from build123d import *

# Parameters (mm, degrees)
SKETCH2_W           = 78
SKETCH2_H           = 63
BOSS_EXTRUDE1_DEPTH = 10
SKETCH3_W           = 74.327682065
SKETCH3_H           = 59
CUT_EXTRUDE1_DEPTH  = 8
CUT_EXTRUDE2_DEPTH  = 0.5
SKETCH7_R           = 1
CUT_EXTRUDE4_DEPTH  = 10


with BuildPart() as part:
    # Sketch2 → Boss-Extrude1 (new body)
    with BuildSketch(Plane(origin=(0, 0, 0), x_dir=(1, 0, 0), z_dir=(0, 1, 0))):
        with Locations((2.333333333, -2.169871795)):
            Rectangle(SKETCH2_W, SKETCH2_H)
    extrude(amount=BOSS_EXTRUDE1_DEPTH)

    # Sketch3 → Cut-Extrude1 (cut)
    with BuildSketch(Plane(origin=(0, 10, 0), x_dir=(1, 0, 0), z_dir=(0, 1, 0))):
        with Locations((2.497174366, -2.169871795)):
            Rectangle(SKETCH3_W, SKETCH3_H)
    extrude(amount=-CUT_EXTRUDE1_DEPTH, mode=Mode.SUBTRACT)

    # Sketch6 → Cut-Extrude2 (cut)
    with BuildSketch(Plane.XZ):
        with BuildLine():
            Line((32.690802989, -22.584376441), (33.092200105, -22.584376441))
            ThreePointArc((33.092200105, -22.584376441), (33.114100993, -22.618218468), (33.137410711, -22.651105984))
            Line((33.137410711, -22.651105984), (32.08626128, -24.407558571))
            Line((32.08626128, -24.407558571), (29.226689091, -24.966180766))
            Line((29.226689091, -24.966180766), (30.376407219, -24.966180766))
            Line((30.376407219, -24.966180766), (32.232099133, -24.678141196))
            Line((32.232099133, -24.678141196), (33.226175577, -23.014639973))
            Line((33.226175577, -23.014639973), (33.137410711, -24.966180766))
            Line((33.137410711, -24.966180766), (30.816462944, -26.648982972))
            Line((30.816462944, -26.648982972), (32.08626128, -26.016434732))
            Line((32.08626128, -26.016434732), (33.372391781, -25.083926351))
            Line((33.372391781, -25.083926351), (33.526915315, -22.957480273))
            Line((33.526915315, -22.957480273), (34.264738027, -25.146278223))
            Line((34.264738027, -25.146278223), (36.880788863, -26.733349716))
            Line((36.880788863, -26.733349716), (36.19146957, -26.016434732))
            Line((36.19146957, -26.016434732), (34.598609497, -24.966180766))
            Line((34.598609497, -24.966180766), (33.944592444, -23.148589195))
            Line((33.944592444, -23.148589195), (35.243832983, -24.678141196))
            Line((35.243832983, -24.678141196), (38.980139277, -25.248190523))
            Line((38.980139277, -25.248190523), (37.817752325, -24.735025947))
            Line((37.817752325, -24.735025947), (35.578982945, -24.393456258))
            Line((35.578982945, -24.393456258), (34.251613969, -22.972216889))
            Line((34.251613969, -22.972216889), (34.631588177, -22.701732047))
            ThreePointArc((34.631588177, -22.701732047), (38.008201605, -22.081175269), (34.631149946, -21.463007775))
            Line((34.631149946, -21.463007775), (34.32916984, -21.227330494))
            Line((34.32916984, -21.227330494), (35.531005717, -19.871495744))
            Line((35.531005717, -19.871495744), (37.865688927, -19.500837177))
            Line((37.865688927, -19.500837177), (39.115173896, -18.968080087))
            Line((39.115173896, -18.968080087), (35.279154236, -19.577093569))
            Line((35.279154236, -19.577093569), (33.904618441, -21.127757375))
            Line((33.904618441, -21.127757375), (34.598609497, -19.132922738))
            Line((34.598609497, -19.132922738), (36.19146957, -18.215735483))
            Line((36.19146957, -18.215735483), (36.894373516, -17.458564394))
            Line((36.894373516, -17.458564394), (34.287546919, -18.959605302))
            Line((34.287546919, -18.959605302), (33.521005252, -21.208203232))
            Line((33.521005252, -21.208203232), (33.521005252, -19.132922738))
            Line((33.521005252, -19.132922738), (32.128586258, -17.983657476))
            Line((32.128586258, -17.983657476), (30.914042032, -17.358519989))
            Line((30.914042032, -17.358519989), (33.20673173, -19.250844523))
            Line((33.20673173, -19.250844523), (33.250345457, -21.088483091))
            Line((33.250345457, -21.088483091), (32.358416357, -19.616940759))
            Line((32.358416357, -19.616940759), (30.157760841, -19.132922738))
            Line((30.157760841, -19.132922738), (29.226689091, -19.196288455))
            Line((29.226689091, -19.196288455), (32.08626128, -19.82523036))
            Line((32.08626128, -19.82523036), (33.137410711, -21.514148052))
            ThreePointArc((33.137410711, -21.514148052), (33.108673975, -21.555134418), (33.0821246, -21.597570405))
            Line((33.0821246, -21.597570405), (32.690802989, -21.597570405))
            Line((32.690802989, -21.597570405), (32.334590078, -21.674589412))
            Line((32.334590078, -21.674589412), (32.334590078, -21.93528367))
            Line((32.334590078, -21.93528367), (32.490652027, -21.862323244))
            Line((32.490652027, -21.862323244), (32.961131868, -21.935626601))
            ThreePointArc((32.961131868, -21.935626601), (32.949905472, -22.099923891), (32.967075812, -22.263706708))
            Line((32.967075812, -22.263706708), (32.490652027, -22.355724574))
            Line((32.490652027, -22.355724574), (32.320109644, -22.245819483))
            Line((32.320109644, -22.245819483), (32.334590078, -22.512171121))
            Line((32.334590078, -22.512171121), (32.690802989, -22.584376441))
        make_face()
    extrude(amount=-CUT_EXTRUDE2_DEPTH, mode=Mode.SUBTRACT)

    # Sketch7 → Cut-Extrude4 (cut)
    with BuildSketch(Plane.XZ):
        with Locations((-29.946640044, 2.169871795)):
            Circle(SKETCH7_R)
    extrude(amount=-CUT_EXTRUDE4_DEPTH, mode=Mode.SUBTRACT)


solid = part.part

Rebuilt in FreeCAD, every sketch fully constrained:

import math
import FreeCAD as App
import Part
import Sketcher


def add_polygon(sketch, points):
    """Adds a closed chain of lines whose ends are joined by coincident constraints."""
    first, n = sketch.GeometryCount, len(points)
    for a, b in zip(points, points[1:] + points[:1]):
        sketch.addGeometry(Part.LineSegment(App.Vector(*a, 0), App.Vector(*b, 0)), False)
    for i in range(n):
        sketch.addConstraint(Sketcher.Constraint("Coincident", first + i, 2, first + (i + 1) % n, 1))

doc = App.newDocument("Part")
body = doc.addObject("PartDesign::Body", "Body")

# Sketch on XZ plane
sketch1 = body.newObject("Sketcher::SketchObject", "Sketch")
sketch1.AttachmentSupport = (doc.getObject("XZ_Plane"), [""])
sketch1.MapMode = "FlatFace"
add_polygon(sketch1, [(-37, -29), (-37, 34), (41, 34), (41, -29)])  # lines 0-3
sketch1.addConstraint(Sketcher.Constraint("Vertical", 0))
sketch1.addConstraint(Sketcher.Constraint("Horizontal", 1))
sketch1.addConstraint(Sketcher.Constraint("Vertical", 2))
sketch1.addConstraint(Sketcher.Constraint("Horizontal", 3))
sketch1.addConstraint(Sketcher.Constraint("DistanceX", 1, 1, 1, 2, 78.0))
sketch1.addConstraint(Sketcher.Constraint("DistanceY", 0, 1, 0, 2, 63.0))
sketch1.addConstraint(Sketcher.Constraint("DistanceY", -1, 1, 0, 2, 33.669872))
sketch1.addConstraint(Sketcher.Constraint("DistanceX", 0, 2, -1, 1, 36.666667))
pad1 = body.newObject("PartDesign::Pad", "Pad")
pad1.Profile = sketch1
pad1.Length = 10
pad1.Reversed = True

# Sketch on XZ plane
sketch2 = body.newObject("Sketcher::SketchObject", "Sketch001")
sketch2.AttachmentSupport = (doc.getObject("XZ_Plane"), [""])
sketch2.MapMode = "FlatFace"
sketch2.AttachmentOffset = App.Placement(App.Vector(0, 0, -10), App.Rotation())
add_polygon(sketch2, [(-35, -27), (-35, 32), (40, 32), (40, -27)])  # lines 0-3
sketch2.addConstraint(Sketcher.Constraint("Vertical", 0))
sketch2.addConstraint(Sketcher.Constraint("Horizontal", 1))
sketch2.addConstraint(Sketcher.Constraint("Vertical", 2))
sketch2.addConstraint(Sketcher.Constraint("Horizontal", 3))
sketch2.addConstraint(Sketcher.Constraint("DistanceY", 0, 1, 0, 2, 59.0))
sketch2.addConstraint(Sketcher.Constraint("DistanceX", 1, 1, 1, 2, 74.327682))
sketch2.addConstraint(Sketcher.Constraint("DistanceY", -1, 1, 0, 2, 31.669872))
sketch2.addConstraint(Sketcher.Constraint("DistanceX", 0, 2, -1, 1, 34.666667))
pocket1 = body.newObject("PartDesign::Pocket", "Pocket")
pocket1.Profile = sketch2
pocket1.Length = 8
pocket1.Reversed = True

# Sketch on XZ plane
sketch3 = body.newObject("Sketcher::SketchObject", "Sketch002")
sketch3.AttachmentSupport = (doc.getObject("XZ_Plane"), [""])
sketch3.MapMode = "FlatFace"
sketch3.addGeometry(Part.LineSegment(App.Vector(32.69, -22.58, 0), App.Vector(33.09, -22.58, 0)), False)
sketch3.addGeometry(Part.ArcOfCircle(Part.Circle(App.Vector(33.9, -22.08, 0), App.Vector(0, 0, 1), 0.95), math.radians(-148.3), math.radians(-143.46)), False)
sketch3.addGeometry(Part.LineSegment(App.Vector(33.14, -22.65, 0), App.Vector(32.09, -24.41, 0)), False)
sketch3.addGeometry(Part.LineSegment(App.Vector(32.09, -24.41, 0), App.Vector(29.23, -24.97, 0)), False)
sketch3.addGeometry(Part.LineSegment(App.Vector(29.23, -24.97, 0), App.Vector(30.38, -24.97, 0)), False)
sketch3.addGeometry(Part.LineSegment(App.Vector(30.38, -24.97, 0), App.Vector(32.23, -24.68, 0)), False)
sketch3.addGeometry(Part.LineSegment(App.Vector(32.23, -24.68, 0), App.Vector(33.23, -23.01, 0)), False)
sketch3.addGeometry(Part.LineSegment(App.Vector(33.23, -23.01, 0), App.Vector(33.14, -24.97, 0)), False)
sketch3.addGeometry(Part.LineSegment(App.Vector(33.14, -24.97, 0), App.Vector(30.82, -26.65, 0)), False)
sketch3.addGeometry(Part.LineSegment(App.Vector(30.82, -26.65, 0), App.Vector(32.09, -26.02, 0)), False)
sketch3.addGeometry(Part.LineSegment(App.Vector(32.09, -26.02, 0), App.Vector(33.37, -25.08, 0)), False)
sketch3.addGeometry(Part.LineSegment(App.Vector(33.37, -25.08, 0), App.Vector(33.53, -22.96, 0)), False)
sketch3.addGeometry(Part.LineSegment(App.Vector(33.53, -22.96, 0), App.Vector(34.26, -25.15, 0)), False)
sketch3.addGeometry(Part.LineSegment(App.Vector(34.26, -25.15, 0), App.Vector(36.88, -26.73, 0)), False)
sketch3.addGeometry(Part.LineSegment(App.Vector(36.88, -26.73, 0), App.Vector(36.19, -26.02, 0)), False)
sketch3.addGeometry(Part.LineSegment(App.Vector(36.19, -26.02, 0), App.Vector(34.6, -24.97, 0)), False)
sketch3.addGeometry(Part.LineSegment(App.Vector(34.6, -24.97, 0), App.Vector(33.94, -23.15, 0)), False)
sketch3.addGeometry(Part.LineSegment(App.Vector(33.94, -23.15, 0), App.Vector(35.24, -24.68, 0)), False)
sketch3.addGeometry(Part.LineSegment(App.Vector(35.24, -24.68, 0), App.Vector(38.98, -25.25, 0)), False)
sketch3.addGeometry(Part.LineSegment(App.Vector(38.98, -25.25, 0), App.Vector(37.82, -24.74, 0)), False)
sketch3.addGeometry(Part.LineSegment(App.Vector(37.82, -24.74, 0), App.Vector(35.58, -24.39, 0)), False)
sketch3.addGeometry(Part.LineSegment(App.Vector(35.58, -24.39, 0), App.Vector(34.25, -22.97, 0)), False)
sketch3.addGeometry(Part.LineSegment(App.Vector(34.25, -22.97, 0), App.Vector(34.63, -22.7, 0)), False)
sketch3.addGeometry(Part.ArcOfCircle(Part.Circle(App.Vector(36.26, -22.08, 0), App.Vector(0, 0, 1), 1.75), math.radians(-159), math.radians(159)), False)
sketch3.addGeometry(Part.LineSegment(App.Vector(34.63, -21.46, 0), App.Vector(34.33, -21.23, 0)), False)
sketch3.addGeometry(Part.LineSegment(App.Vector(34.33, -21.23, 0), App.Vector(35.53, -19.87, 0)), False)
sketch3.addGeometry(Part.LineSegment(App.Vector(35.53, -19.87, 0), App.Vector(37.87, -19.5, 0)), False)
sketch3.addGeometry(Part.LineSegment(App.Vector(37.87, -19.5, 0), App.Vector(39.12, -18.97, 0)), False)
sketch3.addGeometry(Part.LineSegment(App.Vector(39.12, -18.97, 0), App.Vector(35.28, -19.58, 0)), False)
sketch3.addGeometry(Part.LineSegment(App.Vector(35.28, -19.58, 0), App.Vector(33.9, -21.13, 0)), False)
sketch3.addGeometry(Part.LineSegment(App.Vector(33.9, -21.13, 0), App.Vector(34.6, -19.13, 0)), False)
sketch3.addGeometry(Part.LineSegment(App.Vector(34.6, -19.13, 0), App.Vector(36.19, -18.22, 0)), False)
sketch3.addGeometry(Part.LineSegment(App.Vector(36.19, -18.22, 0), App.Vector(36.89, -17.46, 0)), False)
sketch3.addGeometry(Part.LineSegment(App.Vector(36.89, -17.46, 0), App.Vector(34.29, -18.96, 0)), False)
sketch3.addGeometry(Part.LineSegment(App.Vector(34.29, -18.96, 0), App.Vector(33.52, -21.21, 0)), False)
sketch3.addGeometry(Part.LineSegment(App.Vector(33.52, -21.21, 0), App.Vector(33.52, -19.13, 0)), False)
sketch3.addGeometry(Part.LineSegment(App.Vector(33.52, -19.13, 0), App.Vector(32.13, -17.98, 0)), False)
sketch3.addGeometry(Part.LineSegment(App.Vector(32.13, -17.98, 0), App.Vector(30.91, -17.36, 0)), False)
sketch3.addGeometry(Part.LineSegment(App.Vector(30.91, -17.36, 0), App.Vector(33.21, -19.25, 0)), False)
sketch3.addGeometry(Part.LineSegment(App.Vector(33.21, -19.25, 0), App.Vector(33.25, -21.09, 0)), False)
sketch3.addGeometry(Part.LineSegment(App.Vector(33.25, -21.09, 0), App.Vector(32.36, -19.62, 0)), False)
sketch3.addGeometry(Part.LineSegment(App.Vector(32.36, -19.62, 0), App.Vector(30.16, -19.13, 0)), False)
sketch3.addGeometry(Part.LineSegment(App.Vector(30.16, -19.13, 0), App.Vector(29.23, -19.2, 0)), False)
sketch3.addGeometry(Part.LineSegment(App.Vector(29.23, -19.2, 0), App.Vector(32.09, -19.83, 0)), False)
sketch3.addGeometry(Part.LineSegment(App.Vector(32.09, -19.83, 0), App.Vector(33.14, -21.51, 0)), False)
sketch3.addGeometry(Part.ArcOfCircle(Part.Circle(App.Vector(33.9, -22.08, 0), App.Vector(0, 0, 1), 0.95), math.radians(143.46), math.radians(149.47)), False)
sketch3.addGeometry(Part.LineSegment(App.Vector(33.08, -21.6, 0), App.Vector(32.69, -21.6, 0)), False)
sketch3.addGeometry(Part.LineSegment(App.Vector(32.69, -21.6, 0), App.Vector(32.33, -21.67, 0)), False)
sketch3.addGeometry(Part.LineSegment(App.Vector(32.33, -21.67, 0), App.Vector(32.33, -21.94, 0)), False)
sketch3.addGeometry(Part.LineSegment(App.Vector(32.33, -21.94, 0), App.Vector(32.49, -21.86, 0)), False)
sketch3.addGeometry(Part.LineSegment(App.Vector(32.49, -21.86, 0), App.Vector(32.96, -21.94, 0)), False)
sketch3.addGeometry(Part.ArcOfCircle(Part.Circle(App.Vector(33.9, -22.08, 0), App.Vector(0, 0, 1), 0.95), math.radians(171.14), math.radians(190.93)), False)
sketch3.addGeometry(Part.LineSegment(App.Vector(32.97, -22.26, 0), App.Vector(32.49, -22.36, 0)), False)
sketch3.addGeometry(Part.LineSegment(App.Vector(32.49, -22.36, 0), App.Vector(32.32, -22.25, 0)), False)
sketch3.addGeometry(Part.LineSegment(App.Vector(32.32, -22.25, 0), App.Vector(32.33, -22.51, 0)), False)
sketch3.addGeometry(Part.LineSegment(App.Vector(32.33, -22.51, 0), App.Vector(32.69, -22.58, 0)), False)
sketch3.addConstraint(Sketcher.Constraint("Coincident", 0, 2, 1, 1))
sketch3.addConstraint(Sketcher.Constraint("Coincident", 1, 2, 2, 1))
sketch3.addConstraint(Sketcher.Constraint("Coincident", 2, 2, 3, 1))
sketch3.addConstraint(Sketcher.Constraint("Coincident", 3, 2, 4, 1))
sketch3.addConstraint(Sketcher.Constraint("Coincident", 4, 2, 5, 1))
sketch3.addConstraint(Sketcher.Constraint("Coincident", 5, 2, 6, 1))
sketch3.addConstraint(Sketcher.Constraint("Coincident", 6, 2, 7, 1))
sketch3.addConstraint(Sketcher.Constraint("Coincident", 7, 2, 8, 1))
sketch3.addConstraint(Sketcher.Constraint("Coincident", 8, 2, 9, 1))
sketch3.addConstraint(Sketcher.Constraint("Coincident", 9, 2, 10, 1))
sketch3.addConstraint(Sketcher.Constraint("Coincident", 10, 2, 11, 1))
sketch3.addConstraint(Sketcher.Constraint("Coincident", 11, 2, 12, 1))
sketch3.addConstraint(Sketcher.Constraint("Coincident", 12, 2, 13, 1))
sketch3.addConstraint(Sketcher.Constraint("Coincident", 13, 2, 14, 1))
sketch3.addConstraint(Sketcher.Constraint("Coincident", 14, 2, 15, 1))
sketch3.addConstraint(Sketcher.Constraint("Coincident", 15, 2, 16, 1))
sketch3.addConstraint(Sketcher.Constraint("Coincident", 16, 2, 17, 1))
sketch3.addConstraint(Sketcher.Constraint("Coincident", 17, 2, 18, 1))
sketch3.addConstraint(Sketcher.Constraint("Coincident", 18, 2, 19, 1))
sketch3.addConstraint(Sketcher.Constraint("Coincident", 19, 2, 20, 1))
sketch3.addConstraint(Sketcher.Constraint("Coincident", 20, 2, 21, 1))
sketch3.addConstraint(Sketcher.Constraint("Coincident", 21, 2, 22, 1))
sketch3.addConstraint(Sketcher.Constraint("Coincident", 22, 2, 23, 1))
sketch3.addConstraint(Sketcher.Constraint("Coincident", 23, 2, 24, 1))
sketch3.addConstraint(Sketcher.Constraint("Coincident", 24, 2, 25, 1))
sketch3.addConstraint(Sketcher.Constraint("Coincident", 25, 2, 26, 1))
sketch3.addConstraint(Sketcher.Constraint("Coincident", 26, 2, 27, 1))
sketch3.addConstraint(Sketcher.Constraint("Coincident", 27, 2, 28, 1))
sketch3.addConstraint(Sketcher.Constraint("Coincident", 28, 2, 29, 1))
sketch3.addConstraint(Sketcher.Constraint("Coincident", 29, 2, 30, 1))
sketch3.addConstraint(Sketcher.Constraint("Coincident", 30, 2, 31, 1))
sketch3.addConstraint(Sketcher.Constraint("Coincident", 31, 2, 32, 1))
sketch3.addConstraint(Sketcher.Constraint("Coincident", 32, 2, 33, 1))
sketch3.addConstraint(Sketcher.Constraint("Coincident", 33, 2, 34, 1))
sketch3.addConstraint(Sketcher.Constraint("Coincident", 34, 2, 35, 1))
sketch3.addConstraint(Sketcher.Constraint("Coincident", 35, 2, 36, 1))
sketch3.addConstraint(Sketcher.Constraint("Coincident", 36, 2, 37, 1))
sketch3.addConstraint(Sketcher.Constraint("Coincident", 37, 2, 38, 1))
sketch3.addConstraint(Sketcher.Constraint("Coincident", 38, 2, 39, 1))
sketch3.addConstraint(Sketcher.Constraint("Coincident", 39, 2, 40, 1))
sketch3.addConstraint(Sketcher.Constraint("Coincident", 40, 2, 41, 1))
sketch3.addConstraint(Sketcher.Constraint("Coincident", 41, 2, 42, 1))
sketch3.addConstraint(Sketcher.Constraint("Coincident", 42, 2, 43, 1))
sketch3.addConstraint(Sketcher.Constraint("Coincident", 43, 2, 44, 1))
sketch3.addConstraint(Sketcher.Constraint("Coincident", 44, 2, 45, 1))
sketch3.addConstraint(Sketcher.Constraint("Coincident", 45, 2, 46, 1))
sketch3.addConstraint(Sketcher.Constraint("Coincident", 46, 2, 47, 1))
sketch3.addConstraint(Sketcher.Constraint("Coincident", 47, 2, 48, 1))
sketch3.addConstraint(Sketcher.Constraint("Coincident", 48, 2, 49, 1))
sketch3.addConstraint(Sketcher.Constraint("Coincident", 49, 2, 50, 1))
sketch3.addConstraint(Sketcher.Constraint("Coincident", 50, 2, 51, 1))
sketch3.addConstraint(Sketcher.Constraint("Coincident", 51, 2, 52, 1))
sketch3.addConstraint(Sketcher.Constraint("Coincident", 52, 2, 53, 1))
sketch3.addConstraint(Sketcher.Constraint("Coincident", 53, 2, 54, 1))
sketch3.addConstraint(Sketcher.Constraint("Coincident", 54, 2, 55, 1))
sketch3.addConstraint(Sketcher.Constraint("Coincident", 55, 2, 0, 1))
sketch3.addConstraint(Sketcher.Constraint("Horizontal", 0))
sketch3.addConstraint(Sketcher.Constraint("Horizontal", 4))
sketch3.addConstraint(Sketcher.Constraint("Vertical", 35))
sketch3.addConstraint(Sketcher.Constraint("Horizontal", 46))
sketch3.addConstraint(Sketcher.Constraint("Vertical", 48))
sketch3.addConstraint(Sketcher.Constraint("Coincident", 45, 3, 1, 3))
sketch3.addConstraint(Sketcher.Constraint("Coincident", 51, 3, 1, 3))
sketch3.addConstraint(Sketcher.Constraint("Equal", 1, 45))
sketch3.addConstraint(Sketcher.Constraint("Equal", 45, 51))
sketch3.addConstraint(Sketcher.Constraint("Parallel", 8, 10))
sketch3.addConstraint(Sketcher.Constraint("Parallel", 18, 20))
sketch3.addConstraint(Sketcher.Constraint("Parallel", 26, 28))
sketch3.addConstraint(Sketcher.Constraint("Parallel", 25, 29))
sketch3.addConstraint(Sketcher.Constraint("Parallel", 31, 33))
sketch3.addConstraint(Sketcher.Constraint("Parallel", 36, 38))
sketch3.addConstraint(Sketcher.Constraint("Parallel", 41, 43))
sketch3.addConstraint(Sketcher.Constraint("Horizontal", 4, 2, 7, 2))
sketch3.addConstraint(Sketcher.Constraint("Horizontal", 9, 2, 14, 2))
sketch3.addConstraint(Sketcher.Constraint("Horizontal", 7, 2, 15, 2))
sketch3.addConstraint(Sketcher.Constraint("Horizontal", 5, 2, 17, 2))
sketch3.addConstraint(Sketcher.Constraint("Horizontal", 30, 2, 35, 2))
sketch3.addConstraint(Sketcher.Constraint("Horizontal", 35, 2, 41, 2))
sketch3.addConstraint(Sketcher.Constraint("Vertical", 1, 2, 7, 2))
sketch3.addConstraint(Sketcher.Constraint("Vertical", 2, 2, 9, 2))
sketch3.addConstraint(Sketcher.Constraint("Vertical", 51, 3, 29, 2))
sketch3.addConstraint(Sketcher.Constraint("Vertical", 15, 2, 30, 2))
sketch3.addConstraint(Sketcher.Constraint("Vertical", 14, 2, 31, 2))
sketch3.addConstraint(Sketcher.Constraint("Vertical", 3, 2, 42, 2))
sketch3.addConstraint(Sketcher.Constraint("Vertical", 9, 2, 43, 2))
sketch3.addConstraint(Sketcher.Constraint("Vertical", 7, 2, 44, 2))
sketch3.addConstraint(Sketcher.Constraint("Vertical", 49, 2, 52, 2))
sketch3.addConstraint(Sketcher.Constraint("Vertical", 48, 2, 54, 2))
sketch3.addConstraint(Sketcher.Constraint("Vertical", 46, 2, 55, 2))
sketch3.addConstraint(Sketcher.Constraint("Radius", 1, 0.954869))
sketch3.addConstraint(Sketcher.Constraint("Radius", 23, 1.745217))
sketch3.addConstraint(Sketcher.Constraint("Distance", 33, 3.008101))
sketch3.addConstraint(Sketcher.Constraint("DistanceX", 4, 1, 4, 2, 1.149718))
sketch3.addConstraint(Sketcher.Constraint("DistanceX", 46, 2, 46, 1, 0.391322))
sketch3.addConstraint(Sketcher.Constraint("DistanceY", 35, 1, 35, 2, 2.07528))
sketch3.addConstraint(Sketcher.Constraint("DistanceX", -1, 1, 0, 2, 33.0922))
sketch3.addConstraint(Sketcher.Constraint("DistanceX", -1, 1, 5, 2, 32.232099))
sketch3.addConstraint(Sketcher.Constraint("DistanceX", 8, 2, 2, 2, 1.269798))
sketch3.addConstraint(Sketcher.Constraint("DistanceX", 7, 2, 15, 2, 1.461199))
sketch3.addConstraint(Sketcher.Constraint("DistanceY", 15, 2, 11, 2, 2.0087))
sketch3.addConstraint(Sketcher.Constraint("DistanceX", 11, 2, 21, 2, 0.724699))
sketch3.addConstraint(Sketcher.Constraint("DistanceY", 22, 2, 24, 2, 1.474402))
sketch3.addConstraint(Sketcher.Constraint("DistanceX", 22, 2, 26, 2, 3.234101))
sketch3.addConstraint(Sketcher.Constraint("DistanceY", 23, 3, 28, 2, 2.504699))
sketch3.addConstraint(Sketcher.Constraint("DistanceY", 26, 2, 31, 2, 1.285102))
sketch3.addConstraint(Sketcher.Constraint("DistanceX", 32, 2, 27, 2, 2.2208))
sketch3.addConstraint(Sketcher.Constraint("DistanceY", 1, 2, 51, 2, 0.387399))
sketch3.addConstraint(Sketcher.Constraint("DistanceY", 52, 2, 49, 2, 0.493401))
sketch3.addConstraint(Sketcher.Constraint("Distance", 2, 2.046959))
sketch3.addConstraint(Sketcher.Constraint("Distance", 6, 1.937892))
sketch3.addConstraint(Sketcher.Constraint("Distance", 7, 1.953558))
sketch3.addConstraint(Sketcher.Constraint("Distance", 12, 2.309809))
sketch3.addConstraint(Sketcher.Constraint("Distance", 14, 0.994549))
sketch3.addConstraint(Sketcher.Constraint("Distance", 15, 1.90794))
sketch3.addConstraint(Sketcher.Constraint("Distance", 24, 0.383061))
sketch3.addConstraint(Sketcher.Constraint("Distance", 25, 1.811822))
sketch3.addConstraint(Sketcher.Constraint("Distance", 32, 1.033142))
sketch3.addConstraint(Sketcher.Constraint("Distance", 40, 1.720748))
sketch3.addConstraint(Sketcher.Constraint("Distance", 43, 2.927921))
sketch3.addConstraint(Sketcher.Constraint("Distance", 44, 1.989311))
sketch3.addConstraint(Sketcher.Constraint("Distance", 52, 0.485229))
sketch3.addConstraint(Sketcher.Constraint("Distance", 53, 0.202889))
sketch3.addConstraint(Sketcher.Constraint("DistanceX", 0, 1, 0, 2, 0.401397))
sketch3.addConstraint(Sketcher.Constraint("DistanceY", 48, 2, 48, 1, 0.260694))
sketch3.addConstraint(Sketcher.Constraint("DistanceX", -1, 1, 45, 3, 33.904618))
sketch3.addConstraint(Sketcher.Constraint("DistanceX", -1, 1, 1, 2, 33.137411))
sketch3.addConstraint(Sketcher.Constraint("DistanceX", -1, 1, 2, 2, 32.086261))
sketch3.addConstraint(Sketcher.Constraint("DistanceY", 2, 2, -1, 1, 24.407559))
sketch3.addConstraint(Sketcher.Constraint("DistanceX", -1, 1, 3, 2, 29.226689))
sketch3.addConstraint(Sketcher.Constraint("DistanceY", 3, 2, -1, 1, 24.966181))
sketch3.addConstraint(Sketcher.Constraint("DistanceY", 5, 2, -1, 1, 24.678141))
sketch3.addConstraint(Sketcher.Constraint("DistanceX", -1, 1, 10, 2, 33.372392))
sketch3.addConstraint(Sketcher.Constraint("DistanceX", -1, 1, 12, 2, 34.264738))
sketch3.addConstraint(Sketcher.Constraint("DistanceY", 12, 2, -1, 1, 25.146278))
sketch3.addConstraint(Sketcher.Constraint("DistanceX", -1, 1, 13, 2, 36.880789))
sketch3.addConstraint(Sketcher.Constraint("DistanceY", 13, 2, -1, 1, 26.73335))
sketch3.addConstraint(Sketcher.Constraint("DistanceY", 16, 2, -1, 1, 23.148589))
sketch3.addConstraint(Sketcher.Constraint("DistanceX", -1, 1, 18, 2, 38.980139))
sketch3.addConstraint(Sketcher.Constraint("DistanceY", 18, 2, -1, 1, 25.248191))
sketch3.addConstraint(Sketcher.Constraint("DistanceX", -1, 1, 22, 2, 34.631588))
sketch3.addConstraint(Sketcher.Constraint("DistanceX", -1, 1, 23, 2, 34.63115))
sketch3.addConstraint(Sketcher.Constraint("DistanceX", -1, 1, 24, 2, 34.32917))
sketch3.addConstraint(Sketcher.Constraint("DistanceY", 24, 2, -1, 1, 21.22733))
sketch3.addConstraint(Sketcher.Constraint("DistanceY", 27, 2, -1, 1, 18.96808))
sketch3.addConstraint(Sketcher.Constraint("DistanceY", 37, 2, -1, 1, 17.35852))
sketch3.addConstraint(Sketcher.Constraint("DistanceX", -1, 1, 38, 2, 33.206732))
sketch3.addConstraint(Sketcher.Constraint("DistanceY", 40, 2, -1, 1, 19.616941))
sketch3.addConstraint(Sketcher.Constraint("DistanceX", -1, 1, 41, 2, 30.157761))
sketch3.addConstraint(Sketcher.Constraint("DistanceX", -1, 1, 47, 2, 32.33459))
sketch3.addConstraint(Sketcher.Constraint("DistanceY", 47, 2, -1, 1, 21.674589))
sketch3.addConstraint(Sketcher.Constraint("DistanceX", -1, 1, 50, 2, 32.961132))
sketch3.addConstraint(Sketcher.Constraint("DistanceX", -1, 1, 53, 2, 32.32011))
sketch3.addConstraint(Sketcher.Constraint("DistanceY", 53, 2, -1, 1, 22.245819))
sketch3.addConstraint(Sketcher.Constraint("DistanceY", 54, 2, -1, 1, 22.512171))
sketch3.addConstraint(Sketcher.Constraint("DistanceY", 8, 2, 5, 2, 1.970842))
sketch3.addConstraint(Sketcher.Constraint("DistanceX", 1, 2, 16, 2, 0.807182))
sketch3.addConstraint(Sketcher.Constraint("DistanceX", 10, 2, 17, 2, 1.871441))
sketch3.addConstraint(Sketcher.Constraint("DistanceY", 14, 2, 19, 2, 1.281409))
sketch3.addConstraint(Sketcher.Constraint("DistanceX", 17, 2, 19, 2, 2.573919))
sketch3.addConstraint(Sketcher.Constraint("DistanceX", 17, 2, 20, 2, 0.33515))
sketch3.addConstraint(Sketcher.Constraint("DistanceY", 21, 2, 1, 3, 0.88959))
sketch3.addConstraint(Sketcher.Constraint("DistanceX", 25, 2, 23, 3, 0.731979))
sketch3.addConstraint(Sketcher.Constraint("DistanceY", 25, 2, 26, 2, 0.370659))
sketch3.addConstraint(Sketcher.Constraint("DistanceX", 25, 2, 27, 2, 3.584168))
sketch3.addConstraint(Sketcher.Constraint("DistanceY", 28, 2, 30, 2, 0.444171))
sketch3.addConstraint(Sketcher.Constraint("DistanceX", 35, 2, 33, 2, 0.766542))
sketch3.addConstraint(Sketcher.Constraint("DistanceX", 36, 2, 35, 2, 1.392419))
sketch3.addConstraint(Sketcher.Constraint("DistanceY", 38, 2, 35, 2, 0.117922))
sketch3.addConstraint(Sketcher.Constraint("DistanceX", 39, 2, 34, 2, 0.27066))
sketch3.addConstraint(Sketcher.Constraint("DistanceX", 41, 2, 37, 2, 0.756281))
pocket2 = body.newObject("PartDesign::Pocket", "Pocket001")
pocket2.Profile = sketch3
pocket2.Length = 0.5

# Sketch on XZ plane
sketch4 = body.newObject("Sketcher::SketchObject", "Sketch003")
sketch4.AttachmentSupport = (doc.getObject("XZ_Plane"), [""])
sketch4.MapMode = "FlatFace"
sketch4.addGeometry(Part.Circle(App.Vector(-29.9, 2.2, 0), App.Vector(0, 0, 1), 1), False)
sketch4.addConstraint(Sketcher.Constraint("Diameter", 0, 2.0))
sketch4.addConstraint(Sketcher.Constraint("DistanceX", 0, 3, -1, 1, 29.94664))
sketch4.addConstraint(Sketcher.Constraint("DistanceY", -1, 1, 0, 3, 2.169872))
pocket3 = body.newObject("PartDesign::Pocket", "Pocket002")
pocket3.Profile = sketch4
pocket3.Length = 10

doc.recompute()
